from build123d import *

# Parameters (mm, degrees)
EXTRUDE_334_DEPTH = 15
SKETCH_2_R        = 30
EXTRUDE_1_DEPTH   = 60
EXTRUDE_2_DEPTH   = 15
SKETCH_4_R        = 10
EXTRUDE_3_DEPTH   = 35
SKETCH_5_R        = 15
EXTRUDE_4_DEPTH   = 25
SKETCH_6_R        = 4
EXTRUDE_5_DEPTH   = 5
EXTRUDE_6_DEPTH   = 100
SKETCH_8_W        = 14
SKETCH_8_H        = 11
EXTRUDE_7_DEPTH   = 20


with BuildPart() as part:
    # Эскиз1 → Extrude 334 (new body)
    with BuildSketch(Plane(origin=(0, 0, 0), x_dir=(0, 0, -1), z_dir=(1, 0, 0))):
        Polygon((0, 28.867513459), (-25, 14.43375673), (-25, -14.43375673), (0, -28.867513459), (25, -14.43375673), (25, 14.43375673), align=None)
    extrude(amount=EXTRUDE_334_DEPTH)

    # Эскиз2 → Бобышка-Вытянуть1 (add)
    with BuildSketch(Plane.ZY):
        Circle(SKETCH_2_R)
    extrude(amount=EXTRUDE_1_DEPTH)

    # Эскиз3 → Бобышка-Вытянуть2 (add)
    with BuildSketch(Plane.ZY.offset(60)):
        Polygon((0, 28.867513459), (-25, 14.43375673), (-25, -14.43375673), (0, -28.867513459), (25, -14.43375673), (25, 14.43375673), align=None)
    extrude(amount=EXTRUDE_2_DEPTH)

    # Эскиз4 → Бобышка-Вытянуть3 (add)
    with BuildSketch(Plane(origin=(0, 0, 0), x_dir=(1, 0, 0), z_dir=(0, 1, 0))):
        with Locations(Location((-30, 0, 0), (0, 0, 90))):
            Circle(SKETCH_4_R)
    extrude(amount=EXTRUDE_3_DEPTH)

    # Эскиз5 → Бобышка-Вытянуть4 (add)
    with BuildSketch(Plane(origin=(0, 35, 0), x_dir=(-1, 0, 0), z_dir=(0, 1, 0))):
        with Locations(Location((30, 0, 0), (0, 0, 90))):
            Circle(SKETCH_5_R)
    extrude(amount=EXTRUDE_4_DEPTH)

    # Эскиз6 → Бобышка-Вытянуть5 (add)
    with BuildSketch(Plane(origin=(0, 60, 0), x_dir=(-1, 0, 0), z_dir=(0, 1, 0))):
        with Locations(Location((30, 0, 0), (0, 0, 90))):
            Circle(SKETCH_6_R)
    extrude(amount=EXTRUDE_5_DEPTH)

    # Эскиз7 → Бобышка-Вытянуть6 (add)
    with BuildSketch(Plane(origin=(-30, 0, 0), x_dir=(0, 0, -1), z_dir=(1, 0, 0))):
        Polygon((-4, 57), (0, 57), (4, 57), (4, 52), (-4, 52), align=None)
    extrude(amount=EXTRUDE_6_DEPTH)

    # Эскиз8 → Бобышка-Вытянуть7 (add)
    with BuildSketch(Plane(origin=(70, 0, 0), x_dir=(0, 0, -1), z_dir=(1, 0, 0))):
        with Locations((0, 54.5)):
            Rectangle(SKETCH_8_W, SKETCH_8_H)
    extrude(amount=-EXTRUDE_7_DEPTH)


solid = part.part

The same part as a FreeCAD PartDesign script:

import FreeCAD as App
import Part
import Sketcher

V = App.Vector
Q = App.Units.Quantity

doc = App.newDocument("Part")
body = doc.addObject("PartDesign::Body", "Body")

# Sketch on YZ plane
sketch1 = body.newObject("Sketcher::SketchObject", "Sketch")
sketch1.AttachmentSupport = (doc.getObject("YZ_Plane"), [""])
sketch1.MapMode = "FlatFace"
sketch1.addGeometry(Part.LineSegment(V(29, 0, 0), V(14, 25, 0)), False)
sketch1.addGeometry(Part.LineSegment(V(14, 25, 0), V(-14, 25, 0)), False)
sketch1.addGeometry(Part.LineSegment(V(-14, 25, 0), V(-29, 0, 0)), False)
sketch1.addGeometry(Part.LineSegment(V(-29, 0, 0), V(-14, -25, 0)), False)
sketch1.addGeometry(Part.LineSegment(V(-14, -25, 0), V(14, -25, 0)), False)
sketch1.addGeometry(Part.LineSegment(V(14, -25, 0), V(29, 0, 0)), False)
sketch1.addConstraint(Sketcher.Constraint("Coincident", 0, 2, 1, 1))
sketch1.addConstraint(Sketcher.Constraint("Coincident", 1, 2, 2, 1))
sketch1.addConstraint(Sketcher.Constraint("Coincident", 2, 2, 3, 1))
sketch1.addConstraint(Sketcher.Constraint("Coincident", 3, 2, 4, 1))
sketch1.addConstraint(Sketcher.Constraint("Coincident", 4, 2, 5, 1))
sketch1.addConstraint(Sketcher.Constraint("Coincident", 5, 2, 0, 1))
sketch1.addConstraint(Sketcher.Constraint("Horizontal", 1))
sketch1.addConstraint(Sketcher.Constraint("Horizontal", 4))
sketch1.addConstraint(Sketcher.Constraint("Symmetric", 0, 2, 3, 2, -1, 1))
sketch1.addConstraint(Sketcher.Constraint("Symmetric", 2, 2, 5, 2, -1, 1))
sketch1.addConstraint(Sketcher.Constraint("PointOnObject", 2, 2, -1))
sketch1.addConstraint(Sketcher.Constraint("Parallel", 2, 5))
sketch1.addConstraint(Sketcher.Constraint("Vertical", 1, 2, 3, 2))
sketch1.addConstraint(Sketcher.Constraint("Angle", 0, Q("120 deg")))
sketch1.addConstraint(Sketcher.Constraint("DistanceY", -1, 1, 0, 2, 25.0))
sketch1.addConstraint(Sketcher.Constraint("DistanceX", 1, 2, 1, 1, 28.867513))
pad1 = body.newObject("PartDesign::Pad", "Pad")
pad1.Profile = sketch1
pad1.Length = 15

# Sketch on YZ plane
sketch2 = body.newObject("Sketcher::SketchObject", "Sketch001")
sketch2.AttachmentSupport = (doc.getObject("YZ_Plane"), [""])
sketch2.MapMode = "FlatFace"
sketch2.addGeometry(Part.Circle(V(0, 0, 0), V(0, 0, 1), 30), False)
sketch2.addConstraint(Sketcher.Constraint("Coincident", 0, 3, -1, 1))
sketch2.addConstraint(Sketcher.Constraint("Diameter", 0, 60.0))
pad2 = body.newObject("PartDesign::Pad", "Pad001")
pad2.Profile = sketch2
pad2.Length = 60
pad2.Reversed = True

# Sketch on YZ plane
sketch3 = body.newObject("Sketcher::SketchObject", "Sketch002")
sketch3.AttachmentSupport = (doc.getObject("YZ_Plane"), [""])
sketch3.MapMode = "FlatFace"
sketch3.AttachmentOffset = App.Placement(V(0, 0, -60), App.Rotation())
sketch3.addGeometry(Part.LineSegment(V(29, 0, 0), V(14, -25, 0)), False)
sketch3.addGeometry(Part.LineSegment(V(14, -25, 0), V(-14, -25, 0)), False)
sketch3.addGeometry(Part.LineSegment(V(-14, -25, 0), V(-29, 0, 0)), False)
sketch3.addGeometry(Part.LineSegment(V(-29, 0, 0), V(-14, 25, 0)), False)
sketch3.addGeometry(Part.LineSegment(V(-14, 25, 0), V(14, 25, 0)), False)
sketch3.addGeometry(Part.LineSegment(V(14, 25, 0), V(29, 0, 0)), False)
sketch3.addConstraint(Sketcher.Constraint("Coincident", 0, 2, 1, 1))
sketch3.addConstraint(Sketcher.Constraint("Coincident", 1, 2, 2, 1))
sketch3.addConstraint(Sketcher.Constraint("Coincident", 2, 2, 3, 1))
sketch3.addConstraint(Sketcher.Constraint("Coincident", 3, 2, 4, 1))
sketch3.addConstraint(Sketcher.Constraint("Coincident", 4, 2, 5, 1))
sketch3.addConstraint(Sketcher.Constraint("Coincident", 5, 2, 0, 1))
sketch3.addConstraint(Sketcher.Constraint("Horizontal", 1))
sketch3.addConstraint(Sketcher.Constraint("Horizontal", 4))
sketch3.addConstraint(Sketcher.Constraint("Symmetric", 0, 2, 3, 2, -1, 1))
sketch3.addConstraint(Sketcher.Constraint("Symmetric", 2, 2, 5, 2, -1, 1))
sketch3.addConstraint(Sketcher.Constraint("PointOnObject", 2, 2, -1))
sketch3.addConstraint(Sketcher.Constraint("Parallel", 2, 5))
sketch3.addConstraint(Sketcher.Constraint("Vertical", 1, 2, 3, 2))
sketch3.addConstraint(Sketcher.Constraint("Angle", 0, Q("-120 deg")))
sketch3.addConstraint(Sketcher.Constraint("DistanceY", 0, 2, -1, 1, 25.0))
sketch3.addConstraint(Sketcher.Constraint("DistanceX", 1, 2, 1, 1, 28.867513))
pad3 = body.newObject("PartDesign::Pad", "Pad002")
pad3.Profile = sketch3
pad3.Length = 15
pad3.Reversed = True

# Sketch on XZ plane
sketch4 = body.newObject("Sketcher::SketchObject", "Sketch003")
sketch4.AttachmentSupport = (doc.getObject("XZ_Plane"), [""])
sketch4.MapMode = "FlatFace"
sketch4.addGeometry(Part.Circle(V(-30, 0, 0), V(0, 0, 1), 10), False)
sketch4.addConstraint(Sketcher.Constraint("PointOnObject", 0, 3, -1))
sketch4.addConstraint(Sketcher.Constraint("Diameter", 0, 20.0))
sketch4.addConstraint(Sketcher.Constraint("DistanceX", 0, 3, -1, 1, 30.0))
pad4 = body.newObject("PartDesign::Pad", "Pad003")
pad4.Profile = sketch4
pad4.Length = 35
pad4.Reversed = True

# Sketch on XZ plane
sketch5 = body.newObject("Sketcher::SketchObject", "Sketch004")
sketch5.AttachmentSupport = (doc.getObject("XZ_Plane"), [""])
sketch5.MapMode = "FlatFace"
sketch5.AttachmentOffset = App.Placement(V(0, 0, -35), App.Rotation())
sketch5.addGeometry(Part.Circle(V(-30, 0, 0), V(0, 0, 1), 15), False)
sketch5.addConstraint(Sketcher.Constraint("PointOnObject", 0, 3, -1))
sketch5.addConstraint(Sketcher.Constraint("Diameter", 0, 30.0))
sketch5.addConstraint(Sketcher.Constraint("DistanceX", 0, 3, -1, 1, 30.0))
pad5 = body.newObject("PartDesign::Pad", "Pad004")
pad5.Profile = sketch5
pad5.Length = 25
pad5.Reversed = True

# Sketch on XZ plane
sketch6 = body.newObject("Sketcher::SketchObject", "Sketch005")
sketch6.AttachmentSupport = (doc.getObject("XZ_Plane"), [""])
sketch6.MapMode = "FlatFace"
sketch6.AttachmentOffset = App.Placement(V(0, 0, -60), App.Rotation())
sketch6.addGeometry(Part.Circle(V(-30, 0, 0), V(0, 0, 1), 4), False)
sketch6.addConstraint(Sketcher.Constraint("PointOnObject", 0, 3, -1))
sketch6.addConstraint(Sketcher.Constraint("Diameter", 0, 8.0))
sketch6.addConstraint(Sketcher.Constraint("DistanceX", 0, 3, -1, 1, 30.0))
pad6 = body.newObject("PartDesign::Pad", "Pad005")
pad6.Profile = sketch6
pad6.Length = 5
pad6.Reversed = True

# Sketch on YZ plane
sketch7 = body.newObject("Sketcher::SketchObject", "Sketch006")
sketch7.AttachmentSupport = (doc.getObject("YZ_Plane"), [""])
sketch7.MapMode = "FlatFace"
sketch7.AttachmentOffset = App.Placement(V(0, 0, -30), App.Rotation())
sketch7.addGeometry(Part.LineSegment(V(57, -4, 0), V(57, 4, 0)), False)
sketch7.addGeometry(Part.LineSegment(V(57, 4, 0), V(52, 4, 0)), False)
sketch7.addGeometry(Part.LineSegment(V(52, 4, 0), V(52, -4, 0)), False)
sketch7.addGeometry(Part.LineSegment(V(52, -4, 0), V(57, -4, 0)), False)
sketch7.addConstraint(Sketcher.Constraint("Coincident", 0, 2, 1, 1))
sketch7.addConstraint(Sketcher.Constraint("Coincident", 1, 2, 2, 1))
sketch7.addConstraint(Sketcher.Constraint("Coincident", 2, 2, 3, 1))
sketch7.addConstraint(Sketcher.Constraint("Coincident", 3, 2, 0, 1))
sketch7.addConstraint(Sketcher.Constraint("Vertical", 0))
sketch7.addConstraint(Sketcher.Constraint("Horizontal", 1))
sketch7.addConstraint(Sketcher.Constraint("Vertical", 2))
sketch7.addConstraint(Sketcher.Constraint("Horizontal", 3))
sketch7.addConstraint(Sketcher.Constraint("DistanceX", 1, 2, 1, 1, 5.0))
sketch7.addConstraint(Sketcher.Constraint("DistanceY", 0, 1, 0, 2, 8.0))
sketch7.addConstraint(Sketcher.Constraint("DistanceX", -1, 1, 0, 2, 57.0))
sketch7.addConstraint(Sketcher.Constraint("DistanceY", -1, 1, 0, 2, 4.0))
pad7 = body.newObject("PartDesign::Pad", "Pad006")
pad7.Profile = sketch7
pad7.Length = 100

# Sketch on YZ plane
sketch8 = body.newObject("Sketcher::SketchObject", "Sketch007")
sketch8.AttachmentSupport = (doc.getObject("YZ_Plane"), [""])
sketch8.MapMode = "FlatFace"
sketch8.AttachmentOffset = App.Placement(V(0, 0, 70), App.Rotation())
sketch8.addGeometry(Part.LineSegment(V(60, 7, 0), V(49, 7, 0)), False)
sketch8.addGeometry(Part.LineSegment(V(49, 7, 0), V(49, -7, 0)), False)
sketch8.addGeometry(Part.LineSegment(V(49, -7, 0), V(60, -7, 0)), False)
sketch8.addGeometry(Part.LineSegment(V(60, -7, 0), V(60, 7, 0)), False)
sketch8.addConstraint(Sketcher.Constraint("Coincident", 0, 2, 1, 1))
sketch8.addConstraint(Sketcher.Constraint("Coincident", 1, 2, 2, 1))
sketch8.addConstraint(Sketcher.Constraint("Coincident", 2, 2, 3, 1))
sketch8.addConstraint(Sketcher.Constraint("Coincident", 3, 2, 0, 1))
sketch8.addConstraint(Sketcher.Constraint("Horizontal", 0))
sketch8.addConstraint(Sketcher.Constraint("Vertical", 1))
sketch8.addConstraint(Sketcher.Constraint("Horizontal", 2))
sketch8.addConstraint(Sketcher.Constraint("Vertical", 3))
sketch8.addConstraint(Sketcher.Constraint("DistanceX", 0, 2, 0, 1, 11.0))
sketch8.addConstraint(Sketcher.Constraint("DistanceY", 1, 2, 1, 1, 14.0))
sketch8.addConstraint(Sketcher.Constraint("DistanceX", -1, 1, 0, 2, 49.0))
sketch8.addConstraint(Sketcher.Constraint("DistanceY", -1, 1, 0, 2, 7.0))
pad8 = body.newObject("PartDesign::Pad", "Pad007")
pad8.Profile = sketch8
pad8.Length = 20
pad8.Reversed = True

doc.recompute()
